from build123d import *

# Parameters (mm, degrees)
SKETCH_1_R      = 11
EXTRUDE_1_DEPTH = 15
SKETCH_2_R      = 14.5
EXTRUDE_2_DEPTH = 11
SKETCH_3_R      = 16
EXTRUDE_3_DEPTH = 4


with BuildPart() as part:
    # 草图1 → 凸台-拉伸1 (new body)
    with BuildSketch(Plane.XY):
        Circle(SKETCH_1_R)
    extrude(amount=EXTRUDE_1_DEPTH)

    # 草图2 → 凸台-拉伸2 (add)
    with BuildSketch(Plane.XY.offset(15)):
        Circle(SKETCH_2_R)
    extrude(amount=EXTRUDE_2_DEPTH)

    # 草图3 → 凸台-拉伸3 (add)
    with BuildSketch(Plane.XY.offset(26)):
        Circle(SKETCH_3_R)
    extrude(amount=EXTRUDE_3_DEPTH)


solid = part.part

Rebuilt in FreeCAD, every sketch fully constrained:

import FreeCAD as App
import Part
import Sketcher
from FreeCAD import Vector

doc = App.newDocument("Part")
body = doc.addObject("PartDesign::Body", "Body")

# Sketch on XY plane
sketch1 = body.newObject("Sketcher::SketchObject", "Sketch")
sketch1.AttachmentSupport = (doc.getObject("XY_Plane"), [""])
sketch1.MapMode = "FlatFace"
sketch1.addGeometry(Part.Circle(Vector(0, 0, 0), Vector(0, 0, 1), 11), False)
sketch1.addConstraint([
    Sketcher.Constraint("Coincident", 0, 3, -1, 1),
    Sketcher.Constraint("Diameter", 0, 22.0),
])
pad1 = body.newObject("PartDesign::Pad", "Pad")
pad1.Profile = sketch1
pad1.Length = 15

# Sketch on XY plane
sketch2 = body.newObject("Sketcher::SketchObject", "Sketch001")
sketch2.AttachmentSupport = (doc.getObject("XY_Plane"), [""])
sketch2.MapMode = "FlatFace"
sketch2.AttachmentOffset = App.Placement(Vector(0, 0, 15), App.Rotation())
sketch2.addGeometry(Part.Circle(Vector(0, 0, 0), Vector(0, 0, 1), 14), False)
sketch2.addConstraint([
    Sketcher.Constraint("Coincident", 0, 3, -1, 1),
    Sketcher.Constraint("Diameter", 0, 29.0),
])
pad2 = body.newObject("PartDesign::Pad", "Pad001")
pad2.Profile = sketch2
pad2.Length = 11

# Sketch on XY plane
sketch3 = body.newObject("Sketcher::SketchObject", "Sketch002")
sketch3.AttachmentSupport = (doc.getObject("XY_Plane"), [""])
sketch3.MapMode = "FlatFace"
sketch3.AttachmentOffset = App.Placement(Vector(0, 0, 26), App.Rotation())
sketch3.addGeometry(Part.Circle(Vector(0, 0, 0), Vector(0, 0, 1), 16), False)
sketch3.addConstraint([
    Sketcher.Constraint("Coincident", 0, 3, -1, 1),
    Sketcher.Constraint("Diameter", 0, 32.0),
])
pad3 = body.newObject("PartDesign::Pad", "Pad002")
pad3.Profile = sketch3
pad3.Length = 4

doc.recompute()
